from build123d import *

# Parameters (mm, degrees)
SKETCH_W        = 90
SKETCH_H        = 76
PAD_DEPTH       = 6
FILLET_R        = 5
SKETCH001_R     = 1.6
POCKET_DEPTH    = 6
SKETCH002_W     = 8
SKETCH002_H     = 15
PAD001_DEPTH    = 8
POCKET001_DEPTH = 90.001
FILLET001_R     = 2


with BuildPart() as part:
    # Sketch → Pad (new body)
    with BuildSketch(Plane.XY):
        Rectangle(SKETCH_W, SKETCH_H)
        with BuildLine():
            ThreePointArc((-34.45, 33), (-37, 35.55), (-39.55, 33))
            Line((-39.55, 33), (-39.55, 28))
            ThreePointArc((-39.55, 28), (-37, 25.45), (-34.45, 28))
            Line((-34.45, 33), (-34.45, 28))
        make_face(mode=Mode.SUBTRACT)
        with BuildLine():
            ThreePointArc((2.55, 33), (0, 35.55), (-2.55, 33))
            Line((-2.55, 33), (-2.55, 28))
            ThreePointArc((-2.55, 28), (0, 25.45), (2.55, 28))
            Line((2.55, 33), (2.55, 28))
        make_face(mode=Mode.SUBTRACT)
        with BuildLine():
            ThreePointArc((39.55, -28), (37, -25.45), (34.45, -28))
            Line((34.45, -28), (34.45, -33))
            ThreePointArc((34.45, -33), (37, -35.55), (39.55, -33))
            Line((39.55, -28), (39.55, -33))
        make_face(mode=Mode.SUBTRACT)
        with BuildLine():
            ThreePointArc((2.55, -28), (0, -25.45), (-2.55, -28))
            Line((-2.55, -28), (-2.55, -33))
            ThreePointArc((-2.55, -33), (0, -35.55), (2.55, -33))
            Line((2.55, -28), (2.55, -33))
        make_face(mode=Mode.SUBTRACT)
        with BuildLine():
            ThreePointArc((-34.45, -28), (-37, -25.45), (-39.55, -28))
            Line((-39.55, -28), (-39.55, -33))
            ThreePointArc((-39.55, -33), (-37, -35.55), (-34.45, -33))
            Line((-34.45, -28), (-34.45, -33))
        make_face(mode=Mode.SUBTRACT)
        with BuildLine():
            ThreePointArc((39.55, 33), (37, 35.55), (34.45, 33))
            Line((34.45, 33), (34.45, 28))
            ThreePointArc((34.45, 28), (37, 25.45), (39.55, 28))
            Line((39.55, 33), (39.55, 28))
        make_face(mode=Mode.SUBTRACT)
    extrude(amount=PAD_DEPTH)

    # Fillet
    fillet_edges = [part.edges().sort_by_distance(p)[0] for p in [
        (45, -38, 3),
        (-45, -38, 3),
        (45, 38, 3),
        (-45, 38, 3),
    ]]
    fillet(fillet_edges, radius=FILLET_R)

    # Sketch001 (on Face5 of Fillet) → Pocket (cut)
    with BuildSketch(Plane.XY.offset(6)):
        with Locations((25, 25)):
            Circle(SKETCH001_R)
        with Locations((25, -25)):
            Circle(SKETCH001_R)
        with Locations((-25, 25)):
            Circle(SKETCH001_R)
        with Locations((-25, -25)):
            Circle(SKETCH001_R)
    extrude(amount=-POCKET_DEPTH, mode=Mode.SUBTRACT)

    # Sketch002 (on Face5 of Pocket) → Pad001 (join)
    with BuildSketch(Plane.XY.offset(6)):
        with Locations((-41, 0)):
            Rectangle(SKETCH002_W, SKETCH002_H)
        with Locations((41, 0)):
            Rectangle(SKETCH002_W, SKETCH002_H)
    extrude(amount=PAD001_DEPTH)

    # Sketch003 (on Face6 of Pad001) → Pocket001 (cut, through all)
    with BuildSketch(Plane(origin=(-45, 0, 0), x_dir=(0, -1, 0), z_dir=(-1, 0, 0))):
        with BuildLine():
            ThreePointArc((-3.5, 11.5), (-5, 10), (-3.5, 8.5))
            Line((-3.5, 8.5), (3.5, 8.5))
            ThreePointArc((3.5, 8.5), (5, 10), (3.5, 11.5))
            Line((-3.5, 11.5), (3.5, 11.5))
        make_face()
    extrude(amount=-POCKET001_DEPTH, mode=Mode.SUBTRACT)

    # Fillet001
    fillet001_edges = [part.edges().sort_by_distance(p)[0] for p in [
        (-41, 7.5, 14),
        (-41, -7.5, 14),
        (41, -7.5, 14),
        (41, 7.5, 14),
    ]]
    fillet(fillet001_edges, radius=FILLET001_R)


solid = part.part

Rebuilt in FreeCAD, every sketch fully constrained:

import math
import FreeCAD as App
import Part
import Sketcher
Q = App.Units.Quantity


def edges_at(feature, points):
    """Names of the edges that pass closest to the given points."""
    edges = feature.Shape.Edges
    near = lambda p: min(range(len(edges)), key=lambda i: edges[i].distToShape(Part.Vertex(*p))[0])
    return sorted({f"Edge{near(p) + 1}" for p in points})

doc = App.newDocument("Part")
params = doc.addObject("Spreadsheet::Sheet", "Params")
for row, (alias, value) in enumerate([
    ("sketch1_width", "90 mm"),
    ("sketch1_height", "76 mm"),
    ("sketch1_height2", "5 mm"),
    ("sketch1_radius", "2.55 mm"),
    ("pad1_length", "6 mm"),
    ("fillet_radius", "5 mm"),
    ("sketch2_diameter", "3.2 mm"),
    ("pocket1_length", "6 mm"),
    ("sketch3_width", "8 mm"),
    ("sketch3_height", "15 mm"),
    ("pad2_length", "8 mm"),
    ("sketch4_radius", "1.5 mm"),
    ("sketch4_width", "7 mm"),
    ("fillet2_radius", "2 mm"),
], start=1):
    params.set(f"A{row}", alias)
    params.set(f"B{row}", "=" + value)
    params.setAlias(f"B{row}", alias)

body = doc.addObject("PartDesign::Body", "Body")

# Sketch on XY plane
sketch1 = body.newObject("Sketcher::SketchObject", "Sketch")
sketch1.AttachmentSupport = (doc.getObject("XY_Plane"), [""])
sketch1.MapMode = "FlatFace"
sketch1.addGeometry(Part.LineSegment(App.Vector(-45, 38, 0), App.Vector(-45, -38, 0)), False)
sketch1.addGeometry(Part.LineSegment(App.Vector(-45, -38, 0), App.Vector(45, -38, 0)), False)
sketch1.addGeometry(Part.LineSegment(App.Vector(45, -38, 0), App.Vector(45, 38, 0)), False)
sketch1.addGeometry(Part.LineSegment(App.Vector(45, 38, 0), App.Vector(-45, 38, 0)), False)
sketch1.addGeometry(Part.ArcOfCircle(Part.Circle(App.Vector(-37, -28, 0), App.Vector(0, 0, 1), 2.5), math.radians(0), math.radians(180)), False)
sketch1.addGeometry(Part.LineSegment(App.Vector(-34.5, -28, 0), App.Vector(-34.5, -33, 0)), False)
sketch1.addGeometry(Part.ArcOfCircle(Part.Circle(App.Vector(-37, -33, 0), App.Vector(0, 0, 1), 2.5), math.radians(180), math.radians(360)), False)
sketch1.addGeometry(Part.LineSegment(App.Vector(-39.5, -33, 0), App.Vector(-39.5, -28, 0)), False)
sketch1.addGeometry(Part.ArcOfCircle(Part.Circle(App.Vector(0, -28, 0), App.Vector(0, 0, 1), 2.5), math.radians(0), math.radians(180)), False)
sketch1.addGeometry(Part.LineSegment(App.Vector(2.5, -28, 0), App.Vector(2.5, -33, 0)), False)
sketch1.addGeometry(Part.ArcOfCircle(Part.Circle(App.Vector(0, -33, 0), App.Vector(0, 0, 1), 2.5), math.radians(180), math.radians(360)), False)
sketch1.addGeometry(Part.LineSegment(App.Vector(-2.5, -33, 0), App.Vector(-2.5, -28, 0)), False)
sketch1.addGeometry(Part.ArcOfCircle(Part.Circle(App.Vector(37, -28, 0), App.Vector(0, 0, 1), 2.5), math.radians(0), math.radians(180)), False)
sketch1.addGeometry(Part.LineSegment(App.Vector(39.5, -28, 0), App.Vector(39.5, -33, 0)), False)
sketch1.addGeometry(Part.ArcOfCircle(Part.Circle(App.Vector(37, -33, 0), App.Vector(0, 0, 1), 2.5), math.radians(180), math.radians(360)), False)
sketch1.addGeometry(Part.LineSegment(App.Vector(34.5, -33, 0), App.Vector(34.5, -28, 0)), False)
sketch1.addGeometry(Part.ArcOfCircle(Part.Circle(App.Vector(-37, 33, 0), App.Vector(0, 0, 1), 2.5), math.radians(0), math.radians(180)), False)
sketch1.addGeometry(Part.LineSegment(App.Vector(-34.5, 33, 0), App.Vector(-34.5, 28, 0)), False)
sketch1.addGeometry(Part.ArcOfCircle(Part.Circle(App.Vector(-37, 28, 0), App.Vector(0, 0, 1), 2.5), math.radians(180), math.radians(360)), False)
sketch1.addGeometry(Part.LineSegment(App.Vector(-39.5, 28, 0), App.Vector(-39.5, 33, 0)), False)
sketch1.addGeometry(Part.ArcOfCircle(Part.Circle(App.Vector(0, 33, 0), App.Vector(0, 0, 1), 2.5), math.radians(0), math.radians(180)), False)
sketch1.addGeometry(Part.LineSegment(App.Vector(2.5, 33, 0), App.Vector(2.5, 28, 0)), False)
sketch1.addGeometry(Part.ArcOfCircle(Part.Circle(App.Vector(0, 28, 0), App.Vector(0, 0, 1), 2.5), math.radians(180), math.radians(360)), False)
sketch1.addGeometry(Part.LineSegment(App.Vector(-2.5, 28, 0), App.Vector(-2.5, 33, 0)), False)
sketch1.addGeometry(Part.ArcOfCircle(Part.Circle(App.Vector(37, 33, 0), App.Vector(0, 0, 1), 2.5), math.radians(0), math.radians(180)), False)
sketch1.addGeometry(Part.LineSegment(App.Vector(39.5, 33, 0), App.Vector(39.5, 28, 0)), False)
sketch1.addGeometry(Part.ArcOfCircle(Part.Circle(App.Vector(37, 28, 0), App.Vector(0, 0, 1), 2.5), math.radians(180), math.radians(360)), False)
sketch1.addGeometry(Part.LineSegment(App.Vector(34.5, 28, 0), App.Vector(34.5, 33, 0)), False)
sketch1.addConstraint(Sketcher.Constraint("Coincident", 0, 2, 1, 1))
sketch1.addConstraint(Sketcher.Constraint("Coincident", 1, 2, 2, 1))
sketch1.addConstraint(Sketcher.Constraint("Coincident", 2, 2, 3, 1))
sketch1.addConstraint(Sketcher.Constraint("Coincident", 3, 2, 0, 1))
sketch1.addConstraint(Sketcher.Constraint("Tangent", 4, 1, 5, 1))
sketch1.addConstraint(Sketcher.Constraint("Tangent", 5, 2, 6, 2))
sketch1.addConstraint(Sketcher.Constraint("Tangent", 6, 1, 7, 1))
sketch1.addConstraint(Sketcher.Constraint("Tangent", 7, 2, 4, 2))
sketch1.addConstraint(Sketcher.Constraint("Tangent", 8, 1, 9, 1))
sketch1.addConstraint(Sketcher.Constraint("Tangent", 9, 2, 10, 2))
sketch1.addConstraint(Sketcher.Constraint("Tangent", 10, 1, 11, 1))
sketch1.addConstraint(Sketcher.Constraint("Tangent", 11, 2, 8, 2))
sketch1.addConstraint(Sketcher.Constraint("Tangent", 12, 1, 13, 1))
sketch1.addConstraint(Sketcher.Constraint("Tangent", 13, 2, 14, 2))
sketch1.addConstraint(Sketcher.Constraint("Tangent", 14, 1, 15, 1))
sketch1.addConstraint(Sketcher.Constraint("Tangent", 15, 2, 12, 2))
sketch1.addConstraint(Sketcher.Constraint("Tangent", 16, 1, 17, 1))
sketch1.addConstraint(Sketcher.Constraint("Tangent", 17, 2, 18, 2))
sketch1.addConstraint(Sketcher.Constraint("Tangent", 18, 1, 19, 1))
sketch1.addConstraint(Sketcher.Constraint("Tangent", 19, 2, 16, 2))
sketch1.addConstraint(Sketcher.Constraint("Tangent", 20, 1, 21, 1))
sketch1.addConstraint(Sketcher.Constraint("Tangent", 21, 2, 22, 2))
sketch1.addConstraint(Sketcher.Constraint("Tangent", 22, 1, 23, 1))
sketch1.addConstraint(Sketcher.Constraint("Tangent", 23, 2, 20, 2))
sketch1.addConstraint(Sketcher.Constraint("Tangent", 24, 1, 25, 1))
sketch1.addConstraint(Sketcher.Constraint("Tangent", 25, 2, 26, 2))
sketch1.addConstraint(Sketcher.Constraint("Tangent", 26, 1, 27, 1))
sketch1.addConstraint(Sketcher.Constraint("Tangent", 27, 2, 24, 2))
sketch1.addConstraint(Sketcher.Constraint("Vertical", 0))
sketch1.addConstraint(Sketcher.Constraint("Horizontal", 1))
sketch1.addConstraint(Sketcher.Constraint("Vertical", 2))
sketch1.addConstraint(Sketcher.Constraint("Horizontal", 3))
sketch1.addConstraint(Sketcher.Constraint("Vertical", 5))
sketch1.addConstraint(Sketcher.Constraint("Vertical", 7))
sketch1.addConstraint(Sketcher.Constraint("Vertical", 9))
sketch1.addConstraint(Sketcher.Constraint("Vertical", 11))
sketch1.addConstraint(Sketcher.Constraint("Vertical", 13))
sketch1.addConstraint(Sketcher.Constraint("Vertical", 15))
sketch1.addConstraint(Sketcher.Constraint("Vertical", 17))
sketch1.addConstraint(Sketcher.Constraint("Vertical", 19))
sketch1.addConstraint(Sketcher.Constraint("Vertical", 21))
sketch1.addConstraint(Sketcher.Constraint("Vertical", 23))
sketch1.addConstraint(Sketcher.Constraint("Vertical", 25))
sketch1.addConstraint(Sketcher.Constraint("Vertical", 27))
sketch1.addConstraint(Sketcher.Constraint("Equal", 6, 8))
sketch1.addConstraint(Sketcher.Constraint("Equal", 10, 12))
sketch1.addConstraint(Sketcher.Constraint("Equal", 14, 16))
sketch1.addConstraint(Sketcher.Constraint("Equal", 18, 20))
sketch1.addConstraint(Sketcher.Constraint("Equal", 22, 24))
sketch1.addConstraint(Sketcher.Constraint("Symmetric", 14, 3, 16, 3, -1, 1))
sketch1.addConstraint(Sketcher.Constraint("Symmetric", 10, 3, 20, 3, -1, 1))
sketch1.addConstraint(Sketcher.Constraint("Symmetric", 6, 3, 24, 3, -1, 1))
sketch1.addConstraint(Sketcher.Constraint("Symmetric", 0, 2, 2, 2, -1, 1))
sketch1.addConstraint(Sketcher.Constraint("Symmetric", 4, 3, 12, 3, -2))
sketch1.addConstraint(Sketcher.Constraint("Symmetric", 8, 3, 22, 3, -1))
sketch1.addConstraint(Sketcher.Constraint("Horizontal", 4, 3, 8, 3))
sketch1.addConstraint(Sketcher.Constraint("Horizontal", 6, 3, 10, 3))
sketch1.addConstraint(Sketcher.Constraint("Horizontal", 10, 3, 14, 3))
sketch1.addConstraint(Sketcher.Constraint("Horizontal", 18, 3, 22, 3))
sketch1.addConstraint(Sketcher.Constraint("Horizontal", 22, 3, 26, 3))
sketch1.addConstraint(Sketcher.Constraint("DistanceX", 1, 1, 1, 2, Q("90 mm")))
sketch1.addConstraint(Sketcher.Constraint("DistanceY", 0, 2, 0, 1, Q("76 mm")))
sketch1.addConstraint(Sketcher.Constraint("DistanceY", 5, 2, 5, 1, Q("5 mm")))
sketch1.addConstraint(Sketcher.Constraint("Radius", 4, Q("2.55 mm")))
sketch1.addConstraint(Sketcher.Constraint("DistanceX", 4, 3, -1, 1, Q("37 mm")))
sketch1.addConstraint(Sketcher.Constraint("DistanceY", 4, 3, -1, 1, Q("28 mm")))
sketch1.setExpression("Constraints[60]", "Params.sketch1_width")
sketch1.setExpression("Constraints[61]", "Params.sketch1_height")
sketch1.setExpression("Constraints[62]", "Params.sketch1_height2")
sketch1.setExpression("Constraints[63]", "Params.sketch1_radius")
pad1 = body.newObject("PartDesign::Pad", "Pad")
pad1.Profile = sketch1
pad1.setExpression("Length", "Params.pad1_length")
doc.recompute()

fillet = body.newObject("PartDesign::Fillet", "Fillet")
fillet.Base = (pad1, edges_at(pad1, [
    (45, -38, 3),
    (-45, -38, 3),
    (45, 38, 3),
    (-45, 38, 3),
]))
fillet.setExpression("Radius", "Params.fillet_radius")

# Sketch on XY plane
sketch2 = body.newObject("Sketcher::SketchObject", "Sketch001")
sketch2.AttachmentSupport = (doc.getObject("XY_Plane"), [""])
sketch2.MapMode = "FlatFace"
sketch2.AttachmentOffset = App.Placement(App.Vector(0, 0, 6), App.Rotation())
sketch2.addGeometry(Part.Circle(App.Vector(25, 25, 0), App.Vector(0, 0, 1), 1.6), False)
sketch2.addGeometry(Part.Circle(App.Vector(25, -25, 0), App.Vector(0, 0, 1), 1.6), False)
sketch2.addGeometry(Part.Circle(App.Vector(-25, 25, 0), App.Vector(0, 0, 1), 1.6), False)
sketch2.addGeometry(Part.Circle(App.Vector(-25, -25, 0), App.Vector(0, 0, 1), 1.6), False)
sketch2.addConstraint(Sketcher.Constraint("Equal", 0, 1))
sketch2.addConstraint(Sketcher.Constraint("Equal", 1, 2))
sketch2.addConstraint(Sketcher.Constraint("Equal", 2, 3))
sketch2.addConstraint(Sketcher.Constraint("Symmetric", 1, 3, 2, 3, -1, 1))
sketch2.addConstraint(Sketcher.Constraint("Symmetric", 0, 3, 3, 3, -1, 1))
sketch2.addConstraint(Sketcher.Constraint("Symmetric", 0, 3, 2, 3, -2))
sketch2.addConstraint(Sketcher.Constraint("Diameter", 0, Q("3.2 mm")))
sketch2.addConstraint(Sketcher.Constraint("DistanceX", -1, 1, 0, 3, Q("25 mm")))
sketch2.addConstraint(Sketcher.Constraint("DistanceY", -1, 1, 0, 3, Q("25 mm")))
sketch2.setExpression("Constraints[6]", "Params.sketch2_diameter")
pocket1 = body.newObject("PartDesign::Pocket", "Pocket")
pocket1.Profile = sketch2
pocket1.setExpression("Length", "Params.pocket1_length")

# Sketch on XY plane
sketch3 = body.newObject("Sketcher::SketchObject", "Sketch002")
sketch3.AttachmentSupport = (doc.getObject("XY_Plane"), [""])
sketch3.MapMode = "FlatFace"
sketch3.AttachmentOffset = App.Placement(App.Vector(0, 0, 6), App.Rotation())
sketch3.addGeometry(Part.LineSegment(App.Vector(-45, 8, 0), App.Vector(-45, -8, 0)), False)
sketch3.addGeometry(Part.LineSegment(App.Vector(-45, -8, 0), App.Vector(-37, -8, 0)), False)
sketch3.addGeometry(Part.LineSegment(App.Vector(-37, -8, 0), App.Vector(-37, 8, 0)), False)
sketch3.addGeometry(Part.LineSegment(App.Vector(-37, 8, 0), App.Vector(-45, 8, 0)), False)
sketch3.addGeometry(Part.LineSegment(App.Vector(37, 8, 0), App.Vector(37, -8, 0)), False)
sketch3.addGeometry(Part.LineSegment(App.Vector(37, -8, 0), App.Vector(45, -8, 0)), False)
sketch3.addGeometry(Part.LineSegment(App.Vector(45, -8, 0), App.Vector(45, 8, 0)), False)
sketch3.addGeometry(Part.LineSegment(App.Vector(45, 8, 0), App.Vector(37, 8, 0)), False)
sketch3.addConstraint(Sketcher.Constraint("Coincident", 0, 2, 1, 1))
sketch3.addConstraint(Sketcher.Constraint("Coincident", 1, 2, 2, 1))
sketch3.addConstraint(Sketcher.Constraint("Coincident", 2, 2, 3, 1))
sketch3.addConstraint(Sketcher.Constraint("Coincident", 3, 2, 0, 1))
sketch3.addConstraint(Sketcher.Constraint("Coincident", 4, 2, 5, 1))
sketch3.addConstraint(Sketcher.Constraint("Coincident", 5, 2, 6, 1))
sketch3.addConstraint(Sketcher.Constraint("Coincident", 6, 2, 7, 1))
sketch3.addConstraint(Sketcher.Constraint("Coincident", 7, 2, 4, 1))
sketch3.addConstraint(Sketcher.Constraint("Vertical", 0))
sketch3.addConstraint(Sketcher.Constraint("Horizontal", 1))
sketch3.addConstraint(Sketcher.Constraint("Vertical", 2))
sketch3.addConstraint(Sketcher.Constraint("Horizontal", 3))
sketch3.addConstraint(Sketcher.Constraint("Vertical", 4))
sketch3.addConstraint(Sketcher.Constraint("Horizontal", 5))
sketch3.addConstraint(Sketcher.Constraint("Vertical", 6))
sketch3.addConstraint(Sketcher.Constraint("Horizontal", 7))
sketch3.addConstraint(Sketcher.Constraint("Symmetric", 2, 2, 4, 2, -1, 1))
sketch3.addConstraint(Sketcher.Constraint("Symmetric", 0, 2, 6, 2, -1, 1))
sketch3.addConstraint(Sketcher.Constraint("Horizontal", 1, 2, 4, 2))
sketch3.addConstraint(Sketcher.Constraint("DistanceX", 1, 1, 1, 2, Q("8 mm")))
sketch3.addConstraint(Sketcher.Constraint("DistanceY", 0, 2, 0, 1, Q("15 mm")))
sketch3.addConstraint(Sketcher.Constraint("DistanceX", 0, 2, -1, 1, Q("45 mm")))
sketch3.setExpression("Constraints[19]", "Params.sketch3_width")
sketch3.setExpression("Constraints[20]", "Params.sketch3_height")
pad2 = body.newObject("PartDesign::Pad", "Pad001")
pad2.Profile = sketch3
pad2.setExpression("Length", "Params.pad2_length")

# Sketch on YZ plane
sketch4 = body.newObject("Sketcher::SketchObject", "Sketch003")
sketch4.AttachmentSupport = (doc.getObject("YZ_Plane"), [""])
sketch4.MapMode = "FlatFace"
sketch4.AttachmentOffset = App.Placement(App.Vector(0, 0, -45), App.Rotation())
sketch4.addGeometry(Part.ArcOfCircle(Part.Circle(App.Vector(3.5, 10, 0), App.Vector(0, 0, 1), 1.5), math.radians(-90), math.radians(90)), False)
sketch4.addGeometry(Part.LineSegment(App.Vector(3.5, 8.5, 0), App.Vector(-3.5, 8.5, 0)), False)
sketch4.addGeometry(Part.ArcOfCircle(Part.Circle(App.Vector(-3.5, 10, 0), App.Vector(0, 0, 1), 1.5), math.radians(90), math.radians(270)), False)
sketch4.addGeometry(Part.LineSegment(App.Vector(-3.5, 11.5, 0), App.Vector(3.5, 11.5, 0)), False)
sketch4.addConstraint(Sketcher.Constraint("Tangent", 0, 1, 1, 1))
sketch4.addConstraint(Sketcher.Constraint("Tangent", 1, 2, 2, 2))
sketch4.addConstraint(Sketcher.Constraint("Tangent", 2, 1, 3, 1))
sketch4.addConstraint(Sketcher.Constraint("Tangent", 3, 2, 0, 2))
sketch4.addConstraint(Sketcher.Constraint("Horizontal", 1))
sketch4.addConstraint(Sketcher.Constraint("Horizontal", 3))
sketch4.addConstraint(Sketcher.Constraint("Radius", 0, Q("1.5 mm")))
sketch4.addConstraint(Sketcher.Constraint("DistanceX", 1, 2, 1, 1, Q("7 mm")))
sketch4.addConstraint(Sketcher.Constraint("DistanceY", -1, 1, 0, 3, Q("10 mm")))
sketch4.addConstraint(Sketcher.Constraint("DistanceX", -1, 1, 0, 3, Q("3.5 mm")))
sketch4.setExpression("Constraints[6]", "Params.sketch4_radius")
sketch4.setExpression("Constraints[7]", "Params.sketch4_width")
pocket2 = body.newObject("PartDesign::Pocket", "Pocket001")
pocket2.Profile = sketch4
pocket2.Type = "ThroughAll"
pocket2.Reversed = True
doc.recompute()

fillet2 = body.newObject("PartDesign::Fillet", "Fillet001")
fillet2.Base = (pocket2, edges_at(pocket2, [
    (-41, 7.5, 14),
    (-41, -7.5, 14),
    (41, -7.5, 14),
    (41, 7.5, 14),
]))
fillet2.setExpression("Radius", "Params.fillet2_radius")

doc.recompute()
